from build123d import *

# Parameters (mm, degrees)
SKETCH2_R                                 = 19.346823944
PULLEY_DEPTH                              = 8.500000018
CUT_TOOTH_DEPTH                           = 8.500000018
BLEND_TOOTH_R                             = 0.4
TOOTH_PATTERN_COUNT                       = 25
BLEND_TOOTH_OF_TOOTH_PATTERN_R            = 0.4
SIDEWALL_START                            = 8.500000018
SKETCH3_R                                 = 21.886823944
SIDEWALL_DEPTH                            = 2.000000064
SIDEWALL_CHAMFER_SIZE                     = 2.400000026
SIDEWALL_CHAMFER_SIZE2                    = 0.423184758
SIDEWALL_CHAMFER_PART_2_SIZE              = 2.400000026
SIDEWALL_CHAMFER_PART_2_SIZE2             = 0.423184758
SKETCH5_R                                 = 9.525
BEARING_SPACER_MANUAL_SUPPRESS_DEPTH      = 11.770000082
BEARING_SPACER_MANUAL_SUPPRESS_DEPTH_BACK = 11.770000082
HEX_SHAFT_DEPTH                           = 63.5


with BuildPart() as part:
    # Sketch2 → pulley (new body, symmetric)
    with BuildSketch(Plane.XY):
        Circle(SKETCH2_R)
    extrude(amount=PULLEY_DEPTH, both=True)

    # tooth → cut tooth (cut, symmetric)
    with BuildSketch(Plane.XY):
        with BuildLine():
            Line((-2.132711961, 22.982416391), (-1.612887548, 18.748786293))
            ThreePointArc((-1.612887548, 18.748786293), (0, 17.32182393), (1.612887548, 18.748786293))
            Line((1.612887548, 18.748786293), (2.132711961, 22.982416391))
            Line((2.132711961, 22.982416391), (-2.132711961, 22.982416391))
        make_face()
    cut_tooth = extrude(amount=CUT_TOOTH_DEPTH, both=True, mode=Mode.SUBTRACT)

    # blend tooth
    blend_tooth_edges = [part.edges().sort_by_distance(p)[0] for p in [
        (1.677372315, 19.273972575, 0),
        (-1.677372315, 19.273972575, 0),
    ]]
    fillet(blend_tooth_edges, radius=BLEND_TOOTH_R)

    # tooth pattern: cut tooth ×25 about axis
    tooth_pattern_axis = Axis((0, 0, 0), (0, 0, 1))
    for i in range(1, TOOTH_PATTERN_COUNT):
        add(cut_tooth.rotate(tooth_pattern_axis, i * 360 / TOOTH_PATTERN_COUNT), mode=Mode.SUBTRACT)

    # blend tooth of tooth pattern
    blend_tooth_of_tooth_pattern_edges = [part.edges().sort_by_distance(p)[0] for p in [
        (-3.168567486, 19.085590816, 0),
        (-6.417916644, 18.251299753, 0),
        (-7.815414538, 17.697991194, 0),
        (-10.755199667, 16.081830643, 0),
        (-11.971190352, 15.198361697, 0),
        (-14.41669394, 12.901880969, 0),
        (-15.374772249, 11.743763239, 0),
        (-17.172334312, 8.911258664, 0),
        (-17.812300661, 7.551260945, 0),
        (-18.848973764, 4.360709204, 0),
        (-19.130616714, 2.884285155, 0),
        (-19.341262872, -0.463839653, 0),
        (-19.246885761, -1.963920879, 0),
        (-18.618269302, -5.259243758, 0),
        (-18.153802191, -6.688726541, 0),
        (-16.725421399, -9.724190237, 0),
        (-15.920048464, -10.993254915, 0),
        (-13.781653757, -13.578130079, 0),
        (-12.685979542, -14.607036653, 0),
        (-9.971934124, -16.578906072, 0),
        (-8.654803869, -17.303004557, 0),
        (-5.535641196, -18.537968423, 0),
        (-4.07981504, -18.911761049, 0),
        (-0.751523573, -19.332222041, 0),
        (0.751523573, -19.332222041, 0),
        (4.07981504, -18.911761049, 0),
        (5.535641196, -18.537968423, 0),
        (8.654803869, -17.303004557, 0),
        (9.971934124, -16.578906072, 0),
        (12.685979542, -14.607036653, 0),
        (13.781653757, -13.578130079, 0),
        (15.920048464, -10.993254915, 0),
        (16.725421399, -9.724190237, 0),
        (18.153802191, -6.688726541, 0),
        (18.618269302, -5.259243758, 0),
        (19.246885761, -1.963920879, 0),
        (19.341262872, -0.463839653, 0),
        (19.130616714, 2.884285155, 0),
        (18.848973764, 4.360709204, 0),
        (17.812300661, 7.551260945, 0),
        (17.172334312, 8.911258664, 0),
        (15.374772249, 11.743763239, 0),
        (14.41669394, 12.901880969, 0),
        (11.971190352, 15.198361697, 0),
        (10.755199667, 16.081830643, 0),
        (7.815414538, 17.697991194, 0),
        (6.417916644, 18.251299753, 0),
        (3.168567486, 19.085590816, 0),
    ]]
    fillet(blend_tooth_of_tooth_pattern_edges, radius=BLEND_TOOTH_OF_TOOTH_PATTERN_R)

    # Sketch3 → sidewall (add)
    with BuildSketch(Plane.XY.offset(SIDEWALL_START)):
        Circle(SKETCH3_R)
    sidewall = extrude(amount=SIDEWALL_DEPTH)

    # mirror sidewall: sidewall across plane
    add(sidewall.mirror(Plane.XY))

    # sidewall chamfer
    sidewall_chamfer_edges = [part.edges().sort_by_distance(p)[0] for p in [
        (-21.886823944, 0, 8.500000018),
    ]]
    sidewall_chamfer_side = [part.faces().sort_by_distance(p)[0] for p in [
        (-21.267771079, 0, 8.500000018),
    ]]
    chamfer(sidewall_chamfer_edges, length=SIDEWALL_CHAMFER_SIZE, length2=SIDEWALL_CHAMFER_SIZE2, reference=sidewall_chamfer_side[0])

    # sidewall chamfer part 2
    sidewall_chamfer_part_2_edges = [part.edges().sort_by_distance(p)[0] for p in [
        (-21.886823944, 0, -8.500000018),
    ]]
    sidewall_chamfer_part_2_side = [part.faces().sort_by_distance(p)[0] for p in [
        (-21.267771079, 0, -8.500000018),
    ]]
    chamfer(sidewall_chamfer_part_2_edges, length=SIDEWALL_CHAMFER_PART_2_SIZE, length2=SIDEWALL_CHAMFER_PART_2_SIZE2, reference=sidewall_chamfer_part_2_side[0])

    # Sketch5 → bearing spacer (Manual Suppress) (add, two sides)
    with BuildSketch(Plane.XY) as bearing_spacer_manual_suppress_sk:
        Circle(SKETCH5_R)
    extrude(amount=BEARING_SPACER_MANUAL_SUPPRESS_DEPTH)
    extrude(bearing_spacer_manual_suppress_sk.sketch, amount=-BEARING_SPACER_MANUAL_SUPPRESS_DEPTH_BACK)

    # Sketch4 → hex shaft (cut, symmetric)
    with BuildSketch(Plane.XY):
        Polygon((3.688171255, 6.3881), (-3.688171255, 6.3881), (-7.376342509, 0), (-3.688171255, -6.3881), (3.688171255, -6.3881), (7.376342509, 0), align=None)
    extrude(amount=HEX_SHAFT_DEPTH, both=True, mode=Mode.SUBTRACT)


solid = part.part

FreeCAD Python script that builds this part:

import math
import FreeCAD as App
import Part
import Sketcher
Q = App.Units.Quantity


def edges_at(feature, points):
    """Names of the edges that pass closest to the given points."""
    edges = feature.Shape.Edges
    near = lambda p: min(range(len(edges)), key=lambda i: edges[i].distToShape(Part.Vertex(*p))[0])
    return sorted({f"Edge{near(p) + 1}" for p in points})

doc = App.newDocument("Part")
body = doc.addObject("PartDesign::Body", "Body")

sketch1 = doc.addObject("Sketcher::SketchObject", "Sketch")
body.addObject(sketch1)
sketch1.AttachmentSupport = (doc.XY_Plane, [""])
sketch1.MapMode = "FlatFace"
sketch1.addGeometry(Part.Circle(App.Vector(0, 0, 0), App.Vector(0, 0, 1), 19), False)
sketch1.addConstraint([
    Sketcher.Constraint("Coincident", 0, 3, -1, 1),
    Sketcher.Constraint("Diameter", 0, Q("38.693648 mm")),
])
pad1 = doc.addObject("PartDesign::Pad", "Pad")
body.addObject(pad1)
pad1.Profile = sketch1
pad1.Length = 17
pad1.Midplane = True

sketch2 = doc.addObject("Sketcher::SketchObject", "Sketch001")
body.addObject(sketch2)
sketch2.AttachmentSupport = (doc.XY_Plane, [""])
sketch2.MapMode = "FlatFace"
sketch2.addGeometry([
    Part.LineSegment(App.Vector(-2.1, 23, 0), App.Vector(-1.6, 18.7, 0)),
    Part.ArcOfCircle(Part.Circle(App.Vector(0, 18.9, 0), App.Vector(0, 0, 1), 1.6), math.radians(-173), math.radians(-7)),
    Part.LineSegment(App.Vector(1.6, 18.7, 0), App.Vector(2.1, 23, 0)),
    Part.LineSegment(App.Vector(2.1, 23, 0), App.Vector(-2.1, 23, 0)),
], False)
sketch2.addConstraint([
    Sketcher.Constraint("Tangent", 0, 2, 1, 1),
    Sketcher.Constraint("Tangent", 1, 2, 2, 1),
    Sketcher.Constraint("Coincident", 2, 2, 3, 1),
    Sketcher.Constraint("Coincident", 3, 2, 0, 1),
    Sketcher.Constraint("Horizontal", 3),
    Sketcher.Constraint("Symmetric", 0, 2, 1, 2, -2),
    Sketcher.Constraint("Angle", 0, Q("-83 deg")),
    Sketcher.Constraint("Radius", 1, Q("1.625 mm")),
    Sketcher.Constraint("DistanceX", 0, 2, 2, 2, Q("3.7456 mm")),
    Sketcher.Constraint("DistanceY", -1, 1, 1, 3, Q("18.946824 mm")),
])
pocket1 = doc.addObject("PartDesign::Pocket", "Pocket")
body.addObject(pocket1)
pocket1.Profile = sketch2
pocket1.Length = 17
pocket1.Midplane = True
doc.recompute()

fillet = doc.addObject("PartDesign::Fillet", "Fillet")
body.addObject(fillet)
fillet.Base = (pocket1, edges_at(pocket1, [(1.677, 19.274, 0), (-1.677, 19.274, 0)]))
fillet.Radius = 0.4
doc.recompute()

polarpattern = doc.addObject("PartDesign::PolarPattern", "PolarPattern")
body.addObject(polarpattern)
polarpattern.Originals = [pocket1]
polarpattern.Axis = (doc.Z_Axis, [""])
polarpattern.Angle = 360
polarpattern.Occurrences = 25
body.Tip = polarpattern
doc.recompute()

fillet2 = doc.addObject("PartDesign::Fillet", "Fillet001")
body.addObject(fillet2)
fillet2.Base = (polarpattern, edges_at(polarpattern, [
    (-3.169, 19.086, 0),
    (-6.418, 18.251, 0),
    (-7.815, 17.698, 0),
    (-10.755, 16.082, 0),
    (-11.971, 15.198, 0),
    (-14.417, 12.902, 0),
    (-15.375, 11.744, 0),
    (-17.172, 8.911, 0),
    (-17.812, 7.551, 0),
    (-18.849, 4.361, 0),
    (-19.131, 2.884, 0),
    (-19.341, -0.464, 0),
    (-19.247, -1.964, 0),
    (-18.618, -5.259, 0),
    (-18.154, -6.689, 0),
    (-16.725, -9.724, 0),
    (-15.92, -10.993, 0),
    (-13.782, -13.578, 0),
    (-12.686, -14.607, 0),
    (-9.972, -16.579, 0),
    (-8.655, -17.303, 0),
    (-5.536, -18.538, 0),
    (-4.08, -18.912, 0),
    (-0.752, -19.332, 0),
    (0.752, -19.332, 0),
    (4.08, -18.912, 0),
    (5.536, -18.538, 0),
    (8.655, -17.303, 0),
    (9.972, -16.579, 0),
    (12.686, -14.607, 0),
    (13.782, -13.578, 0),
    (15.92, -10.993, 0),
    (16.725, -9.724, 0),
    (18.154, -6.689, 0),
    (18.618, -5.259, 0),
    (19.247, -1.964, 0),
    (19.341, -0.464, 0),
    (19.131, 2.884, 0),
    (18.849, 4.361, 0),
    (17.812, 7.551, 0),
    (17.172, 8.911, 0),
    (15.375, 11.744, 0),
    (14.417, 12.902, 0),
    (11.971, 15.198, 0),
    (10.755, 16.082, 0),
    (7.815, 17.698, 0),
    (6.418, 18.251, 0),
    (3.169, 19.086, 0),
]))
fillet2.Radius = 0.4

sketch3 = doc.addObject("Sketcher::SketchObject", "Sketch002")
body.addObject(sketch3)
sketch3.AttachmentSupport = (doc.XY_Plane, [""])
sketch3.MapMode = "FlatFace"
sketch3.AttachmentOffset = App.Placement(App.Vector(0, 0, 8.5), App.Rotation())
sketch3.addGeometry(Part.Circle(App.Vector(0, 0, 0), App.Vector(0, 0, 1), 22), False)
sketch3.addConstraint([
    Sketcher.Constraint("Coincident", 0, 3, -1, 1),
    Sketcher.Constraint("Diameter", 0, Q("43.773648 mm")),
])
pad2 = doc.addObject("PartDesign::Pad", "Pad001")
body.addObject(pad2)
pad2.Profile = sketch3
pad2.Length = 2
doc.recompute()

mirrored = doc.addObject("PartDesign::Mirrored", "Mirrored")
body.addObject(mirrored)
mirrored.Originals = [pad2]
mirrored.MirrorPlane = (doc.XY_Plane, [""])
body.Tip = mirrored
doc.recompute()

chamfer = doc.addObject("PartDesign::Chamfer", "Chamfer")
body.addObject(chamfer)
chamfer.Base = (mirrored, edges_at(mirrored, [(-21.887, 0, 8.5)]))
chamfer.ChamferType = "Two distances"
chamfer.Size = 2.4
chamfer.Size2 = 0.423185
doc.recompute()

chamfer2 = doc.addObject("PartDesign::Chamfer", "Chamfer001")
body.addObject(chamfer2)
chamfer2.Base = (chamfer, edges_at(chamfer, [(-21.887, 0, -8.5)]))
chamfer2.ChamferType = "Two distances"
chamfer2.Size = 2.4
chamfer2.Size2 = 0.423185

sketch4 = doc.addObject("Sketcher::SketchObject", "Sketch003")
body.addObject(sketch4)
sketch4.AttachmentSupport = (doc.XY_Plane, [""])
sketch4.MapMode = "FlatFace"
sketch4.addGeometry(Part.Circle(App.Vector(0, 0, 0), App.Vector(0, 0, 1), 10), False)
sketch4.addConstraint([
    Sketcher.Constraint("Coincident", 0, 3, -1, 1),
    Sketcher.Constraint("Diameter", 0, Q("19.05 mm")),
])
pad3 = doc.addObject("PartDesign::Pad", "Pad002")
body.addObject(pad3)
pad3.Profile = sketch4
pad3.Type = "TwoLengths"
pad3.Length = 11.77
pad3.Length2 = 11.77

sketch5 = doc.addObject("Sketcher::SketchObject", "Sketch004")
body.addObject(sketch5)
sketch5.AttachmentSupport = (doc.XY_Plane, [""])
sketch5.MapMode = "FlatFace"
sketch5.addGeometry([
    Part.LineSegment(App.Vector(4, 6, 0), App.Vector(-4, 6, 0)),
    Part.LineSegment(App.Vector(-4, 6, 0), App.Vector(-7, 0, 0)),
    Part.LineSegment(App.Vector(-7, 0, 0), App.Vector(-4, -6, 0)),
    Part.LineSegment(App.Vector(-4, -6, 0), App.Vector(4, -6, 0)),
    Part.LineSegment(App.Vector(4, -6, 0), App.Vector(7, 0, 0)),
    Part.LineSegment(App.Vector(7, 0, 0), App.Vector(4, 6, 0)),
], False)
sketch5.addConstraint([
    Sketcher.Constraint("Coincident", 0, 2, 1, 1),
    Sketcher.Constraint("Coincident", 1, 2, 2, 1),
    Sketcher.Constraint("Coincident", 2, 2, 3, 1),
    Sketcher.Constraint("Coincident", 3, 2, 4, 1),
    Sketcher.Constraint("Coincident", 4, 2, 5, 1),
    Sketcher.Constraint("Coincident", 5, 2, 0, 1),
    Sketcher.Constraint("Horizontal", 0),
    Sketcher.Constraint("Horizontal", 3),
    Sketcher.Constraint("Symmetric", 0, 2, 3, 2, -1, 1),
    Sketcher.Constraint("Symmetric", 1, 2, 4, 2, -1, 1),
    Sketcher.Constraint("PointOnObject", 1, 2, -1),
    Sketcher.Constraint("Parallel", 2, 5),
    Sketcher.Constraint("Vertical", 0, 2, 2, 2),
    Sketcher.Constraint("Angle", 1, Q("-120 deg")),
    Sketcher.Constraint("DistanceY", -1, 1, 0, 2, Q("6.3881 mm")),
    Sketcher.Constraint("DistanceX", 0, 2, 0, 1, Q("7.376343 mm")),
])
pocket2 = doc.addObject("PartDesign::Pocket", "Pocket001")
body.addObject(pocket2)
pocket2.Profile = sketch5
pocket2.Length = 127
pocket2.Midplane = True

doc.recompute()
